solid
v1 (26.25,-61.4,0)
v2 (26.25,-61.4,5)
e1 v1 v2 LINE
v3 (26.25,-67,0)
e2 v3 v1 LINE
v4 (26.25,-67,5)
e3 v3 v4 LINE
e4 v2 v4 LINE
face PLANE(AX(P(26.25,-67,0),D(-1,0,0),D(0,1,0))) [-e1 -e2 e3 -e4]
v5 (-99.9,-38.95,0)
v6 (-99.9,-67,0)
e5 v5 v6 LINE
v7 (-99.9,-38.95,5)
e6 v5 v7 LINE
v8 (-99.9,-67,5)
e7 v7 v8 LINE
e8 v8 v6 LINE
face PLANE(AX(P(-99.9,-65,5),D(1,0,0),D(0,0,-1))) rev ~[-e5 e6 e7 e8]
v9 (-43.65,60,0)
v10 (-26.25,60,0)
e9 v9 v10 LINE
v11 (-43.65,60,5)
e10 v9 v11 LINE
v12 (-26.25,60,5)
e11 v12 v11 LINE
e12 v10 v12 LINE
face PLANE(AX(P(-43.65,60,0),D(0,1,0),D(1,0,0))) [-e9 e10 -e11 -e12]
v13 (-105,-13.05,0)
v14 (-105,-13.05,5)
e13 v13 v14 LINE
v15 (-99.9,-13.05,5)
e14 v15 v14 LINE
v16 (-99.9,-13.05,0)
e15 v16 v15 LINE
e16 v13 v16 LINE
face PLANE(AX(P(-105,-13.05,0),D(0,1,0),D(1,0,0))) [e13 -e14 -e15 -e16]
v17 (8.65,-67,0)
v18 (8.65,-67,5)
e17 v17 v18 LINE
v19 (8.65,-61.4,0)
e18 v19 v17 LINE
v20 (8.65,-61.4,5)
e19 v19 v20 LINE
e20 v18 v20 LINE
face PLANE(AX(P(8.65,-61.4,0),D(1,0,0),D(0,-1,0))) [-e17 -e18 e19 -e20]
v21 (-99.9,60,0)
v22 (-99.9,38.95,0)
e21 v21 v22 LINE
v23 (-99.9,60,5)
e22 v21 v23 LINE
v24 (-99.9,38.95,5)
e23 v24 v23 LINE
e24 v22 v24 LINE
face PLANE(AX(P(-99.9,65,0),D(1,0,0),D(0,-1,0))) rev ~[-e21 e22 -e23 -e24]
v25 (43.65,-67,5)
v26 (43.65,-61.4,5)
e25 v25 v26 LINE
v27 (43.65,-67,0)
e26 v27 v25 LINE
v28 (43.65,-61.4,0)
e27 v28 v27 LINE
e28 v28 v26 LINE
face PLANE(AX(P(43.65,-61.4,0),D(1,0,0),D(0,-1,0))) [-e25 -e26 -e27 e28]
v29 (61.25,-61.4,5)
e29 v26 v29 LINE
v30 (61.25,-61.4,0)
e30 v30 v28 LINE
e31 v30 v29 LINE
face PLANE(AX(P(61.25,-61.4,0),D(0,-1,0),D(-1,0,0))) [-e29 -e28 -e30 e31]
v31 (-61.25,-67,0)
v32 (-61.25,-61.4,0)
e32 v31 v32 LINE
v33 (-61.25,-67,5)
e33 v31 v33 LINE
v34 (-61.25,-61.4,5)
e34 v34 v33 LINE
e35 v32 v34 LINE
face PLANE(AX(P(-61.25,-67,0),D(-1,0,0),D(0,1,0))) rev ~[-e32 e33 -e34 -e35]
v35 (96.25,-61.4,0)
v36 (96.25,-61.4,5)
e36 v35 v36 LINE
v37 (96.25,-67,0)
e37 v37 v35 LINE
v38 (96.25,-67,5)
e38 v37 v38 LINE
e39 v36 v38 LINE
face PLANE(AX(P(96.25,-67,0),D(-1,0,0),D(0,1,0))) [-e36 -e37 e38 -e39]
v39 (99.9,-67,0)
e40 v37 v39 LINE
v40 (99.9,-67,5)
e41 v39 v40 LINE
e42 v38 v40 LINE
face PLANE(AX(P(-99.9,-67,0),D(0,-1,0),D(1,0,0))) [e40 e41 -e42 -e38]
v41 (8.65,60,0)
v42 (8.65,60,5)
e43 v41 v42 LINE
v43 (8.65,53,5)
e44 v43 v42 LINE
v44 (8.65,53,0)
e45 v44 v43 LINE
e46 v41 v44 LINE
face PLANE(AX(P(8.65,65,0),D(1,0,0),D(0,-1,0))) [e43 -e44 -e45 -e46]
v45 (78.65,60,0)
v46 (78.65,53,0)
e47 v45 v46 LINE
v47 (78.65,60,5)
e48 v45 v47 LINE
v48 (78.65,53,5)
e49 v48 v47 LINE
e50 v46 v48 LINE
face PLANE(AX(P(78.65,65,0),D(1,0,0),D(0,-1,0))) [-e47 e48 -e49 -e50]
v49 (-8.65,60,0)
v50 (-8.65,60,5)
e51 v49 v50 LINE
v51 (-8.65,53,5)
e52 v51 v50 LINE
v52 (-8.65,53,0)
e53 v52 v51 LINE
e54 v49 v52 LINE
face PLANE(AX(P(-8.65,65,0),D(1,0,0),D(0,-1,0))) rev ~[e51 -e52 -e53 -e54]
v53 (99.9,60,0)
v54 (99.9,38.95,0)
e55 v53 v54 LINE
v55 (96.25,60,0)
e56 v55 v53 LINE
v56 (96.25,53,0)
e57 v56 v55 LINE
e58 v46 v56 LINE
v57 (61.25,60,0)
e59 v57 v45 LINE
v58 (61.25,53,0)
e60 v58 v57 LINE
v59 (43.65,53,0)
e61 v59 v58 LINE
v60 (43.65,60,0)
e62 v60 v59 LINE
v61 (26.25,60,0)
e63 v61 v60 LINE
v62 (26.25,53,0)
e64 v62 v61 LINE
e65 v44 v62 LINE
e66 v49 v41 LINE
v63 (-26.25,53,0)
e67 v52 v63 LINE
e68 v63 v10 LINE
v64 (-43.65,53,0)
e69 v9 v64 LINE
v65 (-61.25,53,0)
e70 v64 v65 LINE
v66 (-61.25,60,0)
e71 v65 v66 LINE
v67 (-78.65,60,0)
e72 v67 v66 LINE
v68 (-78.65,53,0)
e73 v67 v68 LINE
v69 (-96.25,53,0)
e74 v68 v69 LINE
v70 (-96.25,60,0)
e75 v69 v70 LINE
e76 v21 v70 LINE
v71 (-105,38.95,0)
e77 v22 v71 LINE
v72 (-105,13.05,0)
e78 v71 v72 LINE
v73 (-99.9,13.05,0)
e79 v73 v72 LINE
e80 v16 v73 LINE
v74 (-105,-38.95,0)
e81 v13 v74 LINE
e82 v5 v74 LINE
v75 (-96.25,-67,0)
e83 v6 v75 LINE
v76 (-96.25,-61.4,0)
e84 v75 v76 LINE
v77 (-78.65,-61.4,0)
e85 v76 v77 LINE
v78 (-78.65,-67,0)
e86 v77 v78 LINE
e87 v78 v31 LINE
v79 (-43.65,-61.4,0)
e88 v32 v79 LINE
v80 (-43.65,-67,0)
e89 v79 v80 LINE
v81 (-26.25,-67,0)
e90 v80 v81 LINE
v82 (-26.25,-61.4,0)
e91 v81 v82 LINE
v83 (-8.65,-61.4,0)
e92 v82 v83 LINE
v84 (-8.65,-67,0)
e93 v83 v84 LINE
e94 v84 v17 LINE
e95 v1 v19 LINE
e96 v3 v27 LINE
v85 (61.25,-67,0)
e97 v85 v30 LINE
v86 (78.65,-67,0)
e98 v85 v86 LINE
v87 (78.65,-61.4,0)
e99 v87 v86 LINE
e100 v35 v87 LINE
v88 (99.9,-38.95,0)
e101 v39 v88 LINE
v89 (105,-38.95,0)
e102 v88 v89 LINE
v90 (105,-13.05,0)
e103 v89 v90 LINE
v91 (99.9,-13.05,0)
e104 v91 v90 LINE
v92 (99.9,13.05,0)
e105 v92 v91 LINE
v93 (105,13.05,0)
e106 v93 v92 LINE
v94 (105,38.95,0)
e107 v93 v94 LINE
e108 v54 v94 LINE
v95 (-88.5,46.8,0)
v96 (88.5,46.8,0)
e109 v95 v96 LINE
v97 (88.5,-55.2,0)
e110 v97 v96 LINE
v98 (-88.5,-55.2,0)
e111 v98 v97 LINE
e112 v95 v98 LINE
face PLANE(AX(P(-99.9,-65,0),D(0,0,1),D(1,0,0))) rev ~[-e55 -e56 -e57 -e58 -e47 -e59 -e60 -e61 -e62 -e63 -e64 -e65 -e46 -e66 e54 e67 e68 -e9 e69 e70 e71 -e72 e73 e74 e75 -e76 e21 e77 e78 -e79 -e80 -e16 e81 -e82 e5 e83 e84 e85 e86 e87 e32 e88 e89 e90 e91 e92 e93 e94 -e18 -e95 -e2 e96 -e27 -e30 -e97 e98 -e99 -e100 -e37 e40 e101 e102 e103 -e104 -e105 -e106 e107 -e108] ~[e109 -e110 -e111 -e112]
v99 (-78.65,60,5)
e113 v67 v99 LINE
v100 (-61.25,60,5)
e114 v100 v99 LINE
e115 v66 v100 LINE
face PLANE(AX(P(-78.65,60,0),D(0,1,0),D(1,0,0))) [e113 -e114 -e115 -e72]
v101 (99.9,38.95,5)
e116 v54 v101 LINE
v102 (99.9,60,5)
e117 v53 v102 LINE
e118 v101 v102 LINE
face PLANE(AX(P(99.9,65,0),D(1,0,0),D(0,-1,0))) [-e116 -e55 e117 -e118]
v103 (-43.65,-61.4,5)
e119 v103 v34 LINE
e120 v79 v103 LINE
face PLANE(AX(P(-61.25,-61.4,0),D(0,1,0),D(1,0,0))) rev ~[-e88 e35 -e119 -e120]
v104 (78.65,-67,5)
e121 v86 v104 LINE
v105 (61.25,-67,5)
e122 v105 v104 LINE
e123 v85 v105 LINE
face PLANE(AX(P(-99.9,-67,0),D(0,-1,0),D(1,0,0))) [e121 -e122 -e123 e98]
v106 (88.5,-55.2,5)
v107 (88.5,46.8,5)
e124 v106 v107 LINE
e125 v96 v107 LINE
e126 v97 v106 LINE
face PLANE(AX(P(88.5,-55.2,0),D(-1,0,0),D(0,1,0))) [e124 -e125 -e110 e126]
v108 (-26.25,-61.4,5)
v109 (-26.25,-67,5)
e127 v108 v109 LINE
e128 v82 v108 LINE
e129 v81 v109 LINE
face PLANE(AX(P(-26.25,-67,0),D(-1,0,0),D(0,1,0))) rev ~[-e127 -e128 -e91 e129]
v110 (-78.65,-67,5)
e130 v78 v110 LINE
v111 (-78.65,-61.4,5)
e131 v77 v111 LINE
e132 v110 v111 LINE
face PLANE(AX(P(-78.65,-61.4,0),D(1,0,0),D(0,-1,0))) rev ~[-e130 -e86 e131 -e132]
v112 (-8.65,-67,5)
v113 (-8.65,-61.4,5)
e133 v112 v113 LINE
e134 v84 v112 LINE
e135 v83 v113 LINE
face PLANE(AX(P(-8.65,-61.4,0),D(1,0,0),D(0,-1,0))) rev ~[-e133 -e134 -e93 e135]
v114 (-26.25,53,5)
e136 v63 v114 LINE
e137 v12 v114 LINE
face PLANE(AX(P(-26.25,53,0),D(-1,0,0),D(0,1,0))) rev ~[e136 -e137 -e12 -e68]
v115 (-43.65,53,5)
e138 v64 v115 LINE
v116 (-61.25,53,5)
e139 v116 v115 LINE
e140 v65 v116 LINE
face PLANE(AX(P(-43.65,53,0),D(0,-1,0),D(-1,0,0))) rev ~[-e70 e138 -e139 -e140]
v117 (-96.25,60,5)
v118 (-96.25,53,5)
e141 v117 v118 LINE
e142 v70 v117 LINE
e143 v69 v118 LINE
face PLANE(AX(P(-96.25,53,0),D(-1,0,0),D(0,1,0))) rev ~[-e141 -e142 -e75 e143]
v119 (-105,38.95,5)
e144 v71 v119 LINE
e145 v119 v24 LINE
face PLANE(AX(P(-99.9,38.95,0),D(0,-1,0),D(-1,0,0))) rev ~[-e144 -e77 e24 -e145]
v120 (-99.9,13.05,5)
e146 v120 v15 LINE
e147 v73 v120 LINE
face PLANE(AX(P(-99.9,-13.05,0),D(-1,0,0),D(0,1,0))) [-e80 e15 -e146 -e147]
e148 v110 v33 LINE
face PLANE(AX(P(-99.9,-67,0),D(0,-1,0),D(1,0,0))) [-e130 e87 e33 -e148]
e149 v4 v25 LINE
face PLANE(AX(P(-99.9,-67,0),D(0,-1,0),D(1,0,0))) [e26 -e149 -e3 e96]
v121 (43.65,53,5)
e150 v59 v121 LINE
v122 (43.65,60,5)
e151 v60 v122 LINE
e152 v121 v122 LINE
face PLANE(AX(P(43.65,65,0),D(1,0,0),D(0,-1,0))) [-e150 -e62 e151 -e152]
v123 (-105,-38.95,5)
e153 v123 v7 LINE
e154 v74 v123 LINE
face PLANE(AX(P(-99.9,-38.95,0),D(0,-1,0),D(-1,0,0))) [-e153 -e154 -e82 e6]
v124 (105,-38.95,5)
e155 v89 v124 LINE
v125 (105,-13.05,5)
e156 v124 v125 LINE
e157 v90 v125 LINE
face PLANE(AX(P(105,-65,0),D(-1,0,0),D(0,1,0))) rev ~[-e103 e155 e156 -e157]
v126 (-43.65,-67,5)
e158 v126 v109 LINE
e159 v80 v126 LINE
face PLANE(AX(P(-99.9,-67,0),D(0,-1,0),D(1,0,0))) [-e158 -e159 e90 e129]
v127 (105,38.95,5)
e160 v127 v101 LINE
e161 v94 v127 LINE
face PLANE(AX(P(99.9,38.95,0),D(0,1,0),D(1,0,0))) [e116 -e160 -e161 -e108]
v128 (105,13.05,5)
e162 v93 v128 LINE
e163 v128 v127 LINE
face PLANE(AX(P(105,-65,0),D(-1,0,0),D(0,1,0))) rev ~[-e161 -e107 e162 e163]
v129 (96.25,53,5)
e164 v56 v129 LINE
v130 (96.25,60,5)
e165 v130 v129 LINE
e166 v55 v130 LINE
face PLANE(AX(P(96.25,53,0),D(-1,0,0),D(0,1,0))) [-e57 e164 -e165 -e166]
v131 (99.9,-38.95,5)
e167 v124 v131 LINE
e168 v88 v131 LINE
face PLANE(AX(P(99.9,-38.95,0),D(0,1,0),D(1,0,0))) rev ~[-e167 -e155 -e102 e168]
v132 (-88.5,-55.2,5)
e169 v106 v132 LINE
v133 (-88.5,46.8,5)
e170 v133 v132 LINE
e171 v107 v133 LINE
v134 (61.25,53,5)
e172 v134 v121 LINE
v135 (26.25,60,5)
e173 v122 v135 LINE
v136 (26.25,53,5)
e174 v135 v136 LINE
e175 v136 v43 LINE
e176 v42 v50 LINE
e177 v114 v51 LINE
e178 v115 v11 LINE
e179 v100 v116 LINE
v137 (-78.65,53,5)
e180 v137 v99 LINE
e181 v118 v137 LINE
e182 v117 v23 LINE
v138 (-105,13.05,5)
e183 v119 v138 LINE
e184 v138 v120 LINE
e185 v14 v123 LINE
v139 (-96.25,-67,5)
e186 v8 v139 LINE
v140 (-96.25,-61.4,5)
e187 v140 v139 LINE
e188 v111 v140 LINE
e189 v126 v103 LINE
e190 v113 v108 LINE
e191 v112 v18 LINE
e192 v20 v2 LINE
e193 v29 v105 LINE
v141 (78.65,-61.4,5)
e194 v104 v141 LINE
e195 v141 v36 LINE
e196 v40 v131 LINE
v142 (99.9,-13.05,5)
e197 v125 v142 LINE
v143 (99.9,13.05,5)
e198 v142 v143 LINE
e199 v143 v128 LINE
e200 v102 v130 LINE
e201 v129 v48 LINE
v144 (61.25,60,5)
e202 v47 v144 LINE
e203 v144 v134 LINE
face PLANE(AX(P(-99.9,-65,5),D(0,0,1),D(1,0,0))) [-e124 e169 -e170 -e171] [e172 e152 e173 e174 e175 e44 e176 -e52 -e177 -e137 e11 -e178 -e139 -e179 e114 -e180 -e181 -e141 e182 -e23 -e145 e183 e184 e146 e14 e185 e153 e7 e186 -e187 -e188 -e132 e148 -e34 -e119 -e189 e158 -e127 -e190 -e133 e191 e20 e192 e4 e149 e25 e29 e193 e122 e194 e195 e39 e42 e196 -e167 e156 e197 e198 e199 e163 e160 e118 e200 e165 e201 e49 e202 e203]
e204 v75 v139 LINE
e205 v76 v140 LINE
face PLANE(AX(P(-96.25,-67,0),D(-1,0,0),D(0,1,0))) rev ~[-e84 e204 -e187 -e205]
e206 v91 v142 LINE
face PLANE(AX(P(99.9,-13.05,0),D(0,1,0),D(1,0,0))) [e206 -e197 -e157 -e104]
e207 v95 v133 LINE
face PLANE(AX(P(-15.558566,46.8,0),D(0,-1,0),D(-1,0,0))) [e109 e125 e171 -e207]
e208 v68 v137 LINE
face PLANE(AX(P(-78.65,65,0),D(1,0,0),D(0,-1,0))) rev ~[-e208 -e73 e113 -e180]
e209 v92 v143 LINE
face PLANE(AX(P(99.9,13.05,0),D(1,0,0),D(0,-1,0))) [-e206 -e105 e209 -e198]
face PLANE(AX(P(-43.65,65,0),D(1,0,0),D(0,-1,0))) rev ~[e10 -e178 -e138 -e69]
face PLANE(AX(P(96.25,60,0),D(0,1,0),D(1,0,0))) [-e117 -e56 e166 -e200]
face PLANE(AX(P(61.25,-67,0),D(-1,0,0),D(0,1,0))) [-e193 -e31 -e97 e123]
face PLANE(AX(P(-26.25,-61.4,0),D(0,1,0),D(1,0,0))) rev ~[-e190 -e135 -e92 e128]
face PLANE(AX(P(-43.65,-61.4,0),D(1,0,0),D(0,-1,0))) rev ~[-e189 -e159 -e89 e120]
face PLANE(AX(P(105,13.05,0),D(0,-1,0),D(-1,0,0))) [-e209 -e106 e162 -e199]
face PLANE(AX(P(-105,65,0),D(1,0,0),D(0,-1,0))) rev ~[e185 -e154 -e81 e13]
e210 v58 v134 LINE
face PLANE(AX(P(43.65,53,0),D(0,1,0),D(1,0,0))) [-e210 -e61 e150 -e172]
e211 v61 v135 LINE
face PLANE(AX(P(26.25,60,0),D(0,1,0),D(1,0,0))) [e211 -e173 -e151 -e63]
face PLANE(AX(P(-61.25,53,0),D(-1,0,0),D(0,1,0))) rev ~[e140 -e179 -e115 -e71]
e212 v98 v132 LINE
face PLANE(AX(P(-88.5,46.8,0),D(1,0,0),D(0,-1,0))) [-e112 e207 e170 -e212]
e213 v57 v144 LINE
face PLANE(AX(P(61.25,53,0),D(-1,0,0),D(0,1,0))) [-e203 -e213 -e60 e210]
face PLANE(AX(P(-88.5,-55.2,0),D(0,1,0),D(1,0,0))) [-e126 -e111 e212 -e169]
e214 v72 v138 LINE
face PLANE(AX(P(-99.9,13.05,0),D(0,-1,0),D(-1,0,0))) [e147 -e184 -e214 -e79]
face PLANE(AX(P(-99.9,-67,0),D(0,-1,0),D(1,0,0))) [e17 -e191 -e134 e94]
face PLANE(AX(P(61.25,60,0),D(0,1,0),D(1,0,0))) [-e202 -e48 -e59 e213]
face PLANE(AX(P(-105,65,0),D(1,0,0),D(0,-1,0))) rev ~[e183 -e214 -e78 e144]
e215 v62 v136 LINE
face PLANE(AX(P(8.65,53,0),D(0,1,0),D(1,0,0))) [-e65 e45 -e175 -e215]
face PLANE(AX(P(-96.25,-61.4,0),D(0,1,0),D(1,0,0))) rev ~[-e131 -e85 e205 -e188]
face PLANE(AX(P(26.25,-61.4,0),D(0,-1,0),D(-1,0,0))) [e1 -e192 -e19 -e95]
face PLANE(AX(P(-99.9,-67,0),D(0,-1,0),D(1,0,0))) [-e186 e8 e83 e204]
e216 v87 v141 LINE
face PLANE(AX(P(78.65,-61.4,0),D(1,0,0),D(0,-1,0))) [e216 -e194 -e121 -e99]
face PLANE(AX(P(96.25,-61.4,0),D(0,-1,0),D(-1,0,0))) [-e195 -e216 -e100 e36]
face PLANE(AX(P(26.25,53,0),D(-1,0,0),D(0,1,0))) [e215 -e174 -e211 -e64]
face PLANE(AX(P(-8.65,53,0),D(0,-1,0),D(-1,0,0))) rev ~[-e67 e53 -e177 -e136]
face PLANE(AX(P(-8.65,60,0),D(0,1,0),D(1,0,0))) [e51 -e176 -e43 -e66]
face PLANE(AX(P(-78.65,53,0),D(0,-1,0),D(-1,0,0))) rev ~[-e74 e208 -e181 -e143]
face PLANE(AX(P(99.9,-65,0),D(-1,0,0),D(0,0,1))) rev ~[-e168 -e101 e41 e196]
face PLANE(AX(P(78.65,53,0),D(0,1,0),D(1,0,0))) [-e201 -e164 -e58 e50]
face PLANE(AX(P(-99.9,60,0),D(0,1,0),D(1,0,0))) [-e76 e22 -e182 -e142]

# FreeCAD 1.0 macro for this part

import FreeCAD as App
import Part
import Sketcher

V = App.Vector

doc = App.newDocument("Part")
body = doc.addObject("PartDesign::Body", "Body")

sketch1 = body.newObject("Sketcher::SketchObject", "Sketch")
sketch1.AttachmentSupport = (doc.getObject("XY_Plane"), [""])
sketch1.MapMode = "FlatFace"
sketch1.addGeometry([
    Part.LineSegment(V(-105, 65, 0), V(-105, -65, 0)),
    Part.LineSegment(V(-105, -65, 0), V(105, -65, 0)),
    Part.LineSegment(V(105, -65, 0), V(105, 65, 0)),
    Part.LineSegment(V(105, 65, 0), V(-105, 65, 0)),
], False)
sketch1.addConstraint([
    Sketcher.Constraint("Coincident", 0, 2, 1, 1),
    Sketcher.Constraint("Coincident", 1, 2, 2, 1),
    Sketcher.Constraint("Coincident", 2, 2, 3, 1),
    Sketcher.Constraint("Coincident", 3, 2, 0, 1),
    Sketcher.Constraint("Vertical", 0),
    Sketcher.Constraint("Horizontal", 1),
    Sketcher.Constraint("Vertical", 2),
    Sketcher.Constraint("Horizontal", 3),
    Sketcher.Constraint("Symmetric", 0, 2, 2, 2, -1, 1),
    Sketcher.Constraint("DistanceX", 1, 1, 1, 2, 210.0),
    Sketcher.Constraint("DistanceY", 0, 2, 0, 1, 130.0),
])
pad1 = body.newObject("PartDesign::Pad", "Pad")
pad1.Profile = sketch1
pad1.Length = 5

sketch2 = body.newObject("Sketcher::SketchObject", "Sketch001")
sketch2.AttachmentSupport = (doc.getObject("XY_Plane"), [""])
sketch2.MapMode = "FlatFace"
sketch2.addGeometry([
    Part.LineSegment(V(-105, 65, 0), V(-100, 65, 0)),
    Part.LineSegment(V(-100, 65, 0), V(-100, 39, 0)),
    Part.LineSegment(V(-100, 39, 0), V(-105, 39, 0)),
    Part.LineSegment(V(-105, 39, 0), V(-105, 65, 0)),
    Part.LineSegment(V(105, 65, 0), V(105, 39, 0)),
    Part.LineSegment(V(105, 39, 0), V(100, 39, 0)),
    Part.LineSegment(V(100, 39, 0), V(100, 65, 0)),
    Part.LineSegment(V(100, 65, 0), V(105, 65, 0)),
    Part.LineSegment(V(105, 13, 0), V(105, -13, 0)),
    Part.LineSegment(V(105, -13, 0), V(100, -13, 0)),
    Part.LineSegment(V(100, -13, 0), V(100, 13, 0)),
    Part.LineSegment(V(100, 13, 0), V(105, 13, 0)),
    Part.LineSegment(V(105, -65, 0), V(100, -65, 0)),
    Part.LineSegment(V(100, -65, 0), V(100, -39, 0)),
    Part.LineSegment(V(100, -39, 0), V(105, -39, 0)),
    Part.LineSegment(V(105, -39, 0), V(105, -65, 0)),
    Part.LineSegment(V(-100, -65, 0), V(-105, -65, 0)),
    Part.LineSegment(V(-105, -65, 0), V(-105, -39, 0)),
    Part.LineSegment(V(-105, -39, 0), V(-100, -39, 0)),
    Part.LineSegment(V(-100, -39, 0), V(-100, -65, 0)),
    Part.LineSegment(V(-100, -13, 0), V(-105, -13, 0)),
    Part.LineSegment(V(-105, -13, 0), V(-105, 13, 0)),
    Part.LineSegment(V(-105, 13, 0), V(-100, 13, 0)),
    Part.LineSegment(V(-100, 13, 0), V(-100, -13, 0)),
], False)
sketch2.addConstraint([
    Sketcher.Constraint("Coincident", 0, 2, 1, 1),
    Sketcher.Constraint("Coincident", 1, 2, 2, 1),
    Sketcher.Constraint("Coincident", 2, 2, 3, 1),
    Sketcher.Constraint("Coincident", 3, 2, 0, 1),
    Sketcher.Constraint("Coincident", 4, 2, 5, 1),
    Sketcher.Constraint("Coincident", 5, 2, 6, 1),
    Sketcher.Constraint("Coincident", 6, 2, 7, 1),
    Sketcher.Constraint("Coincident", 7, 2, 4, 1),
    Sketcher.Constraint("Coincident", 8, 2, 9, 1),
    Sketcher.Constraint("Coincident", 9, 2, 10, 1),
    Sketcher.Constraint("Coincident", 10, 2, 11, 1),
    Sketcher.Constraint("Coincident", 11, 2, 8, 1),
    Sketcher.Constraint("Coincident", 12, 2, 13, 1),
    Sketcher.Constraint("Coincident", 13, 2, 14, 1),
    Sketcher.Constraint("Coincident", 14, 2, 15, 1),
    Sketcher.Constraint("Coincident", 15, 2, 12, 1),
    Sketcher.Constraint("Coincident", 16, 2, 17, 1),
    Sketcher.Constraint("Coincident", 17, 2, 18, 1),
    Sketcher.Constraint("Coincident", 18, 2, 19, 1),
    Sketcher.Constraint("Coincident", 19, 2, 16, 1),
    Sketcher.Constraint("Coincident", 20, 2, 21, 1),
    Sketcher.Constraint("Coincident", 21, 2, 22, 1),
    Sketcher.Constraint("Coincident", 22, 2, 23, 1),
    Sketcher.Constraint("Coincident", 23, 2, 20, 1),
    Sketcher.Constraint("Horizontal", 0),
    Sketcher.Constraint("Vertical", 1),
    Sketcher.Constraint("Horizontal", 2),
    Sketcher.Constraint("Vertical", 3),
    Sketcher.Constraint("Vertical", 4),
    Sketcher.Constraint("Horizontal", 5),
    Sketcher.Constraint("Vertical", 6),
    Sketcher.Constraint("Horizontal", 7),
    Sketcher.Constraint("Vertical", 8),
    Sketcher.Constraint("Horizontal", 9),
    Sketcher.Constraint("Vertical", 10),
    Sketcher.Constraint("Horizontal", 11),
    Sketcher.Constraint("Horizontal", 12),
    Sketcher.Constraint("Vertical", 13),
    Sketcher.Constraint("Horizontal", 14),
    Sketcher.Constraint("Vertical", 15),
    Sketcher.Constraint("Horizontal", 16),
    Sketcher.Constraint("Vertical", 17),
    Sketcher.Constraint("Horizontal", 18),
    Sketcher.Constraint("Vertical", 19),
    Sketcher.Constraint("Horizontal", 20),
    Sketcher.Constraint("Vertical", 21),
    Sketcher.Constraint("Horizontal", 22),
    Sketcher.Constraint("Vertical", 23),
    Sketcher.Constraint("Symmetric", 0, 2, 12, 2, -1, 1),
    Sketcher.Constraint("Symmetric", 2, 2, 14, 2, -1, 1),
    Sketcher.Constraint("Symmetric", 7, 2, 16, 2, -1, 1),
    Sketcher.Constraint("Symmetric", 5, 2, 18, 2, -1, 1),
    Sketcher.Constraint("Symmetric", 11, 2, 20, 2, -1, 1),
    Sketcher.Constraint("Symmetric", 9, 2, 22, 2, -1, 1),
    Sketcher.Constraint("Symmetric", 2, 2, 4, 2, -2),
    Sketcher.Constraint("Symmetric", 0, 2, 6, 2, -2),
    Sketcher.Constraint("Horizontal", 9, 2, 20, 2),
    Sketcher.Constraint("Vertical", 7, 2, 8, 2),
    Sketcher.Constraint("Vertical", 6, 2, 9, 2),
    Sketcher.Constraint("DistanceX", 0, 1, 0, 2, 5.1),
    Sketcher.Constraint("DistanceY", 8, 2, 8, 1, 26.1),
    Sketcher.Constraint("DistanceY", 16, 2, 3, 2, 130.0),
    Sketcher.Constraint("DistanceY", 1, 2, 1, 1, 26.05),
    Sketcher.Constraint("DistanceX", 2, 2, -1, 1, 105.0),
])
pocket1 = body.newObject("PartDesign::Pocket", "Pocket")
pocket1.Profile = sketch2
pocket1.Length = 10
pocket1.Reversed = True

sketch3 = body.newObject("Sketcher::SketchObject", "Sketch002")
sketch3.AttachmentSupport = (doc.getObject("XZ_Plane"), [""])
sketch3.MapMode = "FlatFace"
sketch3.AttachmentOffset = App.Placement(V(0, 0, 65), App.Rotation())
sketch3.addGeometry([
    Part.LineSegment(V(100, 5, 0), V(-100, 5, 0)),
    Part.LineSegment(V(-100, 5, 0), V(-100, 0, 0)),
    Part.LineSegment(V(-100, 0, 0), V(100, 0, 0)),
    Part.LineSegment(V(100, 0, 0), V(100, 5, 0)),
], False)
sketch3.addConstraint([
    Sketcher.Constraint("Coincident", 0, 2, 1, 1),
    Sketcher.Constraint("Coincident", 1, 2, 2, 1),
    Sketcher.Constraint("Coincident", 2, 2, 3, 1),
    Sketcher.Constraint("Coincident", 3, 2, 0, 1),
    Sketcher.Constraint("Horizontal", 0),
    Sketcher.Constraint("Vertical", 1),
    Sketcher.Constraint("Horizontal", 2),
    Sketcher.Constraint("Vertical", 3),
    Sketcher.Constraint("Symmetric", 1, 2, 2, 2, -1, 1),
    Sketcher.Constraint("DistanceY", 1, 2, 1, 1, 5.0),
    Sketcher.Constraint("DistanceX", 0, 2, 0, 1, 199.8),
])
pad2 = body.newObject("PartDesign::Pad", "Pad001")
pad2.Profile = sketch3
pad2.Length = 2

sketch4 = body.newObject("Sketcher::SketchObject", "Sketch003")
sketch4.AttachmentSupport = (doc.getObject("XY_Plane"), [""])
sketch4.MapMode = "FlatFace"
sketch4.addGeometry([
    Part.LineSegment(V(-79, -67, 0), V(-96, -67, 0)),
    Part.LineSegment(V(-96, -67, 0), V(-96, -61, 0)),
    Part.LineSegment(V(-96, -61, 0), V(-79, -61, 0)),
    Part.LineSegment(V(-79, -61, 0), V(-79, -67, 0)),
    Part.LineSegment(V(-44, -67, 0), V(-61, -67, 0)),
    Part.LineSegment(V(-61, -67, 0), V(-61, -61, 0)),
    Part.LineSegment(V(-61, -61, 0), V(-44, -61, 0)),
    Part.LineSegment(V(-44, -61, 0), V(-44, -67, 0)),
    Part.LineSegment(V(96, -61, 0), V(96, -67, 0)),
    Part.LineSegment(V(96, -67, 0), V(79, -67, 0)),
    Part.LineSegment(V(79, -67, 0), V(79, -61, 0)),
    Part.LineSegment(V(79, -61, 0), V(96, -61, 0)),
    Part.LineSegment(V(-9, -67, 0), V(-26, -67, 0)),
    Part.LineSegment(V(-26, -67, 0), V(-26, -61, 0)),
    Part.LineSegment(V(-26, -61, 0), V(-9, -61, 0)),
    Part.LineSegment(V(-9, -61, 0), V(-9, -67, 0)),
    Part.LineSegment(V(61, -61, 0), V(61, -67, 0)),
    Part.LineSegment(V(61, -67, 0), V(44, -67, 0)),
    Part.LineSegment(V(44, -67, 0), V(44, -61, 0)),
    Part.LineSegment(V(44, -61, 0), V(61, -61, 0)),
    Part.LineSegment(V(26, -67, 0), V(9, -67, 0)),
    Part.LineSegment(V(9, -67, 0), V(9, -61, 0)),
    Part.LineSegment(V(9, -61, 0), V(26, -61, 0)),
    Part.LineSegment(V(26, -61, 0), V(26, -67, 0)),
], False)
sketch4.addConstraint([
    Sketcher.Constraint("Coincident", 0, 2, 1, 1),
    Sketcher.Constraint("Coincident", 1, 2, 2, 1),
    Sketcher.Constraint("Coincident", 2, 2, 3, 1),
    Sketcher.Constraint("Coincident", 3, 2, 0, 1),
    Sketcher.Constraint("Coincident", 4, 2, 5, 1),
    Sketcher.Constraint("Coincident", 5, 2, 6, 1),
    Sketcher.Constraint("Coincident", 6, 2, 7, 1),
    Sketcher.Constraint("Coincident", 7, 2, 4, 1),
    Sketcher.Constraint("Coincident", 8, 2, 9, 1),
    Sketcher.Constraint("Coincident", 9, 2, 10, 1),
    Sketcher.Constraint("Coincident", 10, 2, 11, 1),
    Sketcher.Constraint("Coincident", 11, 2, 8, 1),
    Sketcher.Constraint("Coincident", 12, 2, 13, 1),
    Sketcher.Constraint("Coincident", 13, 2, 14, 1),
    Sketcher.Constraint("Coincident", 14, 2, 15, 1),
    Sketcher.Constraint("Coincident", 15, 2, 12, 1),
    Sketcher.Constraint("Coincident", 16, 2, 17, 1),
    Sketcher.Constraint("Coincident", 17, 2, 18, 1),
    Sketcher.Constraint("Coincident", 18, 2, 19, 1),
    Sketcher.Constraint("Coincident", 19, 2, 16, 1),
    Sketcher.Constraint("Coincident", 20, 2, 21, 1),
    Sketcher.Constraint("Coincident", 21, 2, 22, 1),
    Sketcher.Constraint("Coincident", 22, 2, 23, 1),
    Sketcher.Constraint("Coincident", 23, 2, 20, 1),
    Sketcher.Constraint("Horizontal", 0),
    Sketcher.Constraint("Vertical", 1),
    Sketcher.Constraint("Horizontal", 2),
    Sketcher.Constraint("Vertical", 3),
    Sketcher.Constraint("Horizontal", 4),
    Sketcher.Constraint("Vertical", 5),
    Sketcher.Constraint("Horizontal", 6),
    Sketcher.Constraint("Vertical", 7),
    Sketcher.Constraint("Vertical", 8),
    Sketcher.Constraint("Horizontal", 9),
    Sketcher.Constraint("Vertical", 10),
    Sketcher.Constraint("Horizontal", 11),
    Sketcher.Constraint("Horizontal", 12),
    Sketcher.Constraint("Vertical", 13),
    Sketcher.Constraint("Horizontal", 14),
    Sketcher.Constraint("Vertical", 15),
    Sketcher.Constraint("Vertical", 16),
    Sketcher.Constraint("Horizontal", 17),
    Sketcher.Constraint("Vertical", 18),
    Sketcher.Constraint("Horizontal", 19),
    Sketcher.Constraint("Horizontal", 20),
    Sketcher.Constraint("Vertical", 21),
    Sketcher.Constraint("Horizontal", 22),
    Sketcher.Constraint("Vertical", 23),
    Sketcher.Constraint("Symmetric", 0, 2, 8, 2, -2),
    Sketcher.Constraint("Symmetric", 2, 2, 10, 2, -2),
    Sketcher.Constraint("Symmetric", 4, 2, 16, 2, -2),
    Sketcher.Constraint("Symmetric", 6, 2, 18, 2, -2),
    Sketcher.Constraint("Symmetric", 15, 2, 20, 2, -2),
    Sketcher.Constraint("Symmetric", 13, 2, 22, 2, -2),
    Sketcher.Constraint("Horizontal", 3, 2, 4, 2),
    Sketcher.Constraint("Horizontal", 2, 2, 5, 2),
    Sketcher.Constraint("Horizontal", 9, 2, 12, 2),
    Sketcher.Constraint("Horizontal", 11, 2, 13, 2),
    Sketcher.Constraint("Equal", 2, 4),
    Sketcher.Constraint("Equal", 11, 12),
    Sketcher.Constraint("DistanceX", 0, 2, 0, 1, 17.6),
    Sketcher.Constraint("DistanceY", 1, 1, 1, 2, 5.6),
    Sketcher.Constraint("DistanceX", 0, 2, 4, 2, 35.0),
    Sketcher.Constraint("DistanceX", 4, 2, 12, 2, 35.0),
    Sketcher.Constraint("DistanceY", 0, 2, -1, 1, 67.0),
    Sketcher.Constraint("DistanceX", 7, 2, 8, 2, 139.9),
])
pocket2 = body.newObject("PartDesign::Pocket", "Pocket001")
pocket2.Profile = sketch4
pocket2.Type = "ThroughAll"
pocket2.Reversed = True

sketch5 = body.newObject("Sketcher::SketchObject", "Sketch004")
sketch5.AttachmentSupport = (doc.getObject("XY_Plane"), [""])
sketch5.MapMode = "FlatFace"
sketch5.addGeometry([
    Part.LineSegment(V(-9, 65, 0), V(-9, 53, 0)),
    Part.LineSegment(V(-9, 53, 0), V(-26, 53, 0)),
    Part.LineSegment(V(-26, 53, 0), V(-26, 65, 0)),
    Part.LineSegment(V(-26, 65, 0), V(-9, 65, 0)),
    Part.LineSegment(V(79, 53, 0), V(79, 65, 0)),
    Part.LineSegment(V(79, 65, 0), V(96, 65, 0)),
    Part.LineSegment(V(96, 65, 0), V(96, 53, 0)),
    Part.LineSegment(V(96, 53, 0), V(79, 53, 0)),
    Part.LineSegment(V(44, 53, 0), V(44, 65, 0)),
    Part.LineSegment(V(44, 65, 0), V(61, 65, 0)),
    Part.LineSegment(V(61, 65, 0), V(61, 53, 0)),
    Part.LineSegment(V(61, 53, 0), V(44, 53, 0)),
    Part.LineSegment(V(9, 53, 0), V(9, 65, 0)),
    Part.LineSegment(V(9, 65, 0), V(26, 65, 0)),
    Part.LineSegment(V(26, 65, 0), V(26, 53, 0)),
    Part.LineSegment(V(26, 53, 0), V(9, 53, 0)),
    Part.LineSegment(V(-96, 65, 0), V(-79, 65, 0)),
    Part.LineSegment(V(-79, 65, 0), V(-79, 53, 0)),
    Part.LineSegment(V(-79, 53, 0), V(-96, 53, 0)),
    Part.LineSegment(V(-96, 53, 0), V(-96, 65, 0)),
    Part.LineSegment(V(-61, 65, 0), V(-44, 65, 0)),
    Part.LineSegment(V(-44, 65, 0), V(-44, 53, 0)),
    Part.LineSegment(V(-44, 53, 0), V(-61, 53, 0)),
    Part.LineSegment(V(-61, 53, 0), V(-61, 65, 0)),
], False)
sketch5.addConstraint([
    Sketcher.Constraint("Coincident", 0, 2, 1, 1),
    Sketcher.Constraint("Coincident", 1, 2, 2, 1),
    Sketcher.Constraint("Coincident", 2, 2, 3, 1),
    Sketcher.Constraint("Coincident", 3, 2, 0, 1),
    Sketcher.Constraint("Coincident", 4, 2, 5, 1),
    Sketcher.Constraint("Coincident", 5, 2, 6, 1),
    Sketcher.Constraint("Coincident", 6, 2, 7, 1),
    Sketcher.Constraint("Coincident", 7, 2, 4, 1),
    Sketcher.Constraint("Coincident", 8, 2, 9, 1),
    Sketcher.Constraint("Coincident", 9, 2, 10, 1),
    Sketcher.Constraint("Coincident", 10, 2, 11, 1),
    Sketcher.Constraint("Coincident", 11, 2, 8, 1),
    Sketcher.Constraint("Coincident", 12, 2, 13, 1),
    Sketcher.Constraint("Coincident", 13, 2, 14, 1),
    Sketcher.Constraint("Coincident", 14, 2, 15, 1),
    Sketcher.Constraint("Coincident", 15, 2, 12, 1),
    Sketcher.Constraint("Coincident", 16, 2, 17, 1),
    Sketcher.Constraint("Coincident", 17, 2, 18, 1),
    Sketcher.Constraint("Coincident", 18, 2, 19, 1),
    Sketcher.Constraint("Coincident", 19, 2, 16, 1),
    Sketcher.Constraint("Coincident", 20, 2, 21, 1),
    Sketcher.Constraint("Coincident", 21, 2, 22, 1),
    Sketcher.Constraint("Coincident", 22, 2, 23, 1),
    Sketcher.Constraint("Coincident", 23, 2, 20, 1),
    Sketcher.Constraint("Vertical", 0),
    Sketcher.Constraint("Horizontal", 1),
    Sketcher.Constraint("Vertical", 2),
    Sketcher.Constraint("Horizontal", 3),
    Sketcher.Constraint("Vertical", 4),
    Sketcher.Constraint("Horizontal", 5),
    Sketcher.Constraint("Vertical", 6),
    Sketcher.Constraint("Horizontal", 7),
    Sketcher.Constraint("Vertical", 8),
    Sketcher.Constraint("Horizontal", 9),
    Sketcher.Constraint("Vertical", 10),
    Sketcher.Constraint("Horizontal", 11),
    Sketcher.Constraint("Vertical", 12),
    Sketcher.Constraint("Horizontal", 13),
    Sketcher.Constraint("Vertical", 14),
    Sketcher.Constraint("Horizontal", 15),
    Sketcher.Constraint("Horizontal", 16),
    Sketcher.Constraint("Vertical", 17),
    Sketcher.Constraint("Horizontal", 18),
    Sketcher.Constraint("Vertical", 19),
    Sketcher.Constraint("Horizontal", 20),
    Sketcher.Constraint("Vertical", 21),
    Sketcher.Constraint("Horizontal", 22),
    Sketcher.Constraint("Vertical", 23),
    Sketcher.Constraint("Symmetric", 3, 2, 12, 2, -2),
    Sketcher.Constraint("Symmetric", 1, 2, 14, 2, -2),
    Sketcher.Constraint("Symmetric", 4, 2, 16, 2, -2),
    Sketcher.Constraint("Symmetric", 6, 2, 18, 2, -2),
    Sketcher.Constraint("Symmetric", 8, 2, 20, 2, -2),
    Sketcher.Constraint("Symmetric", 10, 2, 22, 2, -2),
    Sketcher.Constraint("Horizontal", 3, 2, 4, 2),
    Sketcher.Constraint("Horizontal", 1, 2, 6, 2),
    Sketcher.Constraint("Horizontal", 5, 2, 8, 2),
    Sketcher.Constraint("Horizontal", 7, 2, 10, 2),
    Sketcher.Constraint("Equal", 3, 5),
    Sketcher.Constraint("Equal", 7, 9),
    Sketcher.Constraint("DistanceY", 0, 2, 0, 1, 12.0),
    Sketcher.Constraint("DistanceX", 1, 2, 1, 1, 17.6),
    Sketcher.Constraint("DistanceX", 8, 2, 4, 2, 35.0),
    Sketcher.Constraint("DistanceX", 12, 2, 8, 2, 35.0),
    Sketcher.Constraint("DistanceY", -1, 1, 0, 2, 53.0),
    Sketcher.Constraint("DistanceX", 3, 2, 4, 2, 87.3),
])
pocket3 = body.newObject("PartDesign::Pocket", "Pocket002")
pocket3.Profile = sketch5
pocket3.Length = 10
pocket3.Reversed = True

sketch6 = body.newObject("Sketcher::SketchObject", "Sketch005")
sketch6.AttachmentSupport = (doc.getObject("XY_Plane"), [""])
sketch6.MapMode = "FlatFace"
sketch6.addGeometry([
    Part.LineSegment(V(-43.6, 65, 0), V(-26.2, 65, 0)),
    Part.LineSegment(V(-26.2, 65, 0), V(-26.2, 60, 0)),
    Part.LineSegment(V(-26.2, 60, 0), V(-43.6, 60, 0)),
    Part.LineSegment(V(-43.6, 60, 0), V(-43.6, 65, 0)),
    Part.LineSegment(V(8.7, 60, 0), V(-8.7, 60, 0)),
    Part.LineSegment(V(-8.7, 60, 0), V(-8.7, 65, 0)),
    Part.LineSegment(V(-8.7, 65, 0), V(8.7, 65, 0)),
    Part.LineSegment(V(8.7, 65, 0), V(8.7, 60, 0)),
    Part.LineSegment(V(-61.2, 65, 0), V(-61.2, 60, 0)),
    Part.LineSegment(V(-61.2, 60, 0), V(-78.7, 60, 0)),
    Part.LineSegment(V(-78.7, 60, 0), V(-78.7, 65, 0)),
    Part.LineSegment(V(-78.7, 65, 0), V(-61.2, 65, 0)),
    Part.LineSegment(V(43.6, 60, 0), V(26.2, 60, 0)),
    Part.LineSegment(V(26.2, 60, 0), V(26.2, 65, 0)),
    Part.LineSegment(V(26.2, 65, 0), V(43.6, 65, 0)),
    Part.LineSegment(V(43.6, 65, 0), V(43.6, 60, 0)),
    Part.LineSegment(V(-96.2, 65, 0), V(-96.2, 60, 0)),
    Part.LineSegment(V(-96.2, 60, 0), V(-99.9, 60, 0)),
    Part.LineSegment(V(-99.9, 60, 0), V(-99.9, 65, 0)),
    Part.LineSegment(V(-99.9, 65, 0), V(-96.2, 65, 0)),
    Part.LineSegment(V(78.7, 60, 0), V(61.2, 60, 0)),
    Part.LineSegment(V(61.2, 60, 0), V(61.2, 65, 0)),
    Part.LineSegment(V(61.2, 65, 0), V(78.7, 65, 0)),
    Part.LineSegment(V(78.7, 65, 0), V(78.7, 60, 0)),
    Part.LineSegment(V(99.9, 60, 0), V(96.2, 60, 0)),
    Part.LineSegment(V(96.2, 60, 0), V(96.2, 65, 0)),
    Part.LineSegment(V(96.2, 65, 0), V(99.9, 65, 0)),
    Part.LineSegment(V(99.9, 65, 0), V(99.9, 60, 0)),
], False)
sketch6.addConstraint([
    Sketcher.Constraint("Coincident", 0, 2, 1, 1),
    Sketcher.Constraint("Coincident", 1, 2, 2, 1),
    Sketcher.Constraint("Coincident", 2, 2, 3, 1),
    Sketcher.Constraint("Coincident", 3, 2, 0, 1),
    Sketcher.Constraint("Coincident", 4, 2, 5, 1),
    Sketcher.Constraint("Coincident", 5, 2, 6, 1),
    Sketcher.Constraint("Coincident", 6, 2, 7, 1),
    Sketcher.Constraint("Coincident", 7, 2, 4, 1),
    Sketcher.Constraint("Coincident", 8, 2, 9, 1),
    Sketcher.Constraint("Coincident", 9, 2, 10, 1),
    Sketcher.Constraint("Coincident", 10, 2, 11, 1),
    Sketcher.Constraint("Coincident", 11, 2, 8, 1),
    Sketcher.Constraint("Coincident", 12, 2, 13, 1),
    Sketcher.Constraint("Coincident", 13, 2, 14, 1),
    Sketcher.Constraint("Coincident", 14, 2, 15, 1),
    Sketcher.Constraint("Coincident", 15, 2, 12, 1),
    Sketcher.Constraint("Coincident", 16, 2, 17, 1),
    Sketcher.Constraint("Coincident", 17, 2, 18, 1),
    Sketcher.Constraint("Coincident", 18, 2, 19, 1),
    Sketcher.Constraint("Coincident", 19, 2, 16, 1),
    Sketcher.Constraint("Coincident", 20, 2, 21, 1),
    Sketcher.Constraint("Coincident", 21, 2, 22, 1),
    Sketcher.Constraint("Coincident", 22, 2, 23, 1),
    Sketcher.Constraint("Coincident", 23, 2, 20, 1),
    Sketcher.Constraint("Coincident", 24, 2, 25, 1),
    Sketcher.Constraint("Coincident", 25, 2, 26, 1),
    Sketcher.Constraint("Coincident", 26, 2, 27, 1),
    Sketcher.Constraint("Coincident", 27, 2, 24, 1),
    Sketcher.Constraint("Horizontal", 0),
    Sketcher.Constraint("Vertical", 1),
    Sketcher.Constraint("Horizontal", 2),
    Sketcher.Constraint("Vertical", 3),
    Sketcher.Constraint("Horizontal", 4),
    Sketcher.Constraint("Vertical", 5),
    Sketcher.Constraint("Horizontal", 6),
    Sketcher.Constraint("Vertical", 7),
    Sketcher.Constraint("Vertical", 8),
    Sketcher.Constraint("Horizontal", 9),
    Sketcher.Constraint("Vertical", 10),
    Sketcher.Constraint("Horizontal", 11),
    Sketcher.Constraint("Horizontal", 12),
    Sketcher.Constraint("Vertical", 13),
    Sketcher.Constraint("Horizontal", 14),
    Sketcher.Constraint("Vertical", 15),
    Sketcher.Constraint("Vertical", 16),
    Sketcher.Constraint("Horizontal", 17),
    Sketcher.Constraint("Vertical", 18),
    Sketcher.Constraint("Horizontal", 19),
    Sketcher.Constraint("Horizontal", 20),
    Sketcher.Constraint("Vertical", 21),
    Sketcher.Constraint("Horizontal", 22),
    Sketcher.Constraint("Vertical", 23),
    Sketcher.Constraint("Horizontal", 24),
    Sketcher.Constraint("Vertical", 25),
    Sketcher.Constraint("Horizontal", 26),
    Sketcher.Constraint("Vertical", 27),
    Sketcher.Constraint("Symmetric", 1, 2, 12, 2, -2),
    Sketcher.Constraint("Symmetric", 3, 2, 14, 2, -2),
    Sketcher.Constraint("Symmetric", 8, 2, 20, 2, -2),
    Sketcher.Constraint("Symmetric", 10, 2, 22, 2, -2),
    Sketcher.Constraint("Symmetric", 16, 2, 24, 2, -2),
    Sketcher.Constraint("Symmetric", 18, 2, 26, 2, -2),
    Sketcher.Constraint("Horizontal", 2, 2, 4, 2),
    Sketcher.Constraint("Horizontal", 3, 2, 5, 2),
    Sketcher.Constraint("Horizontal", 7, 2, 8, 2),
    Sketcher.Constraint("Horizontal", 6, 2, 10, 2),
    Sketcher.Constraint("Horizontal", 15, 2, 16, 2),
    Sketcher.Constraint("Horizontal", 14, 2, 18, 2),
    Sketcher.Constraint("Equal", 2, 9),
    Sketcher.Constraint("DistanceY", 1, 2, 1, 1, 5.0),
    Sketcher.Constraint("DistanceX", 0, 1, 0, 2, 17.4),
    Sketcher.Constraint("DistanceX", 4, 2, 4, 1, 17.3),
    Sketcher.Constraint("DistanceY", -1, 1, 0, 2, 65.0),
    Sketcher.Constraint("DistanceX", 2, 2, 4, 2, 35.0),
    Sketcher.Constraint("DistanceX", 8, 2, 1, 2, 35.0),
    Sketcher.Constraint("DistanceX", 6, 2, 14, 2, 35.0),
    Sketcher.Constraint("DistanceX", 16, 2, 8, 2, 35.0),
    Sketcher.Constraint("DistanceX", 17, 2, 17, 1, 3.65),
])
pocket4 = body.newObject("PartDesign::Pocket", "Pocket003")
pocket4.Profile = sketch6
pocket4.Type = "ThroughAll"
pocket4.Reversed = True

sketch7 = body.newObject("Sketcher::SketchObject", "Sketch006")
sketch7.AttachmentSupport = (doc.getObject("XY_Plane"), [""])
sketch7.MapMode = "FlatFace"
sketch7.addGeometry([
    Part.LineSegment(V(-88, -55, 0), V(-88, 47, 0)),
    Part.LineSegment(V(-88, 47, 0), V(88, 47, 0)),
    Part.LineSegment(V(88, 47, 0), V(88, -55, 0)),
    Part.LineSegment(V(88, -55, 0), V(-88, -55, 0)),
], False)
sketch7.addConstraint([
    Sketcher.Constraint("Coincident", 0, 2, 1, 1),
    Sketcher.Constraint("Coincident", 1, 2, 2, 1),
    Sketcher.Constraint("Coincident", 2, 2, 3, 1),
    Sketcher.Constraint("Coincident", 3, 2, 0, 1),
    Sketcher.Constraint("Vertical", 0),
    Sketcher.Constraint("Horizontal", 1),
    Sketcher.Constraint("Vertical", 2),
    Sketcher.Constraint("Horizontal", 3),
    Sketcher.Constraint("DistanceX", 1, 1, 1, 2, 177.0),
    Sketcher.Constraint("DistanceY", 0, 1, 0, 2, 102.0),
    Sketcher.Constraint("DistanceX", 0, 2, -1, 1, 88.5),
    Sketcher.Constraint("DistanceY", -1, 1, 0, 2, 46.8),
])
pocket5 = body.newObject("PartDesign::Pocket", "Pocket004")
pocket5.Profile = sketch7
pocket5.Length = 5
pocket5.Reversed = True

doc.recompute()
